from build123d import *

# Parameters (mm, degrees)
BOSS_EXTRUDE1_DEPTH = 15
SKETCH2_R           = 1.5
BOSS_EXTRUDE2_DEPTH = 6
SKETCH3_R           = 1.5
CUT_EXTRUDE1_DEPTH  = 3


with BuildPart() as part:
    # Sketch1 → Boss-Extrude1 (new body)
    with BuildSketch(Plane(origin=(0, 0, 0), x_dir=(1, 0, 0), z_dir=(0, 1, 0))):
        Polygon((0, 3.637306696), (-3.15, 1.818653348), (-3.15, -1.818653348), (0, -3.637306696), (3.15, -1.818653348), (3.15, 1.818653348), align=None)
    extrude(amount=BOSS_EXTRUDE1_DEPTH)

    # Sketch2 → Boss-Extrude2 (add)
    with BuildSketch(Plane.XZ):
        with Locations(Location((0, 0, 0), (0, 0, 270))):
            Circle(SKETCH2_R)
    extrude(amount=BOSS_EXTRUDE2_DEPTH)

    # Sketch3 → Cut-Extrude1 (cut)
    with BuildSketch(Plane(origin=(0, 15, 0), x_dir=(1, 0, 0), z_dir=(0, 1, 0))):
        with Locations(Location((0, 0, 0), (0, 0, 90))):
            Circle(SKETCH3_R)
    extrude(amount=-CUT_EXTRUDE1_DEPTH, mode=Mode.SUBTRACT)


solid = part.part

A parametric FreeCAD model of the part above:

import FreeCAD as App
import Part
import Sketcher
Q = App.Units.Quantity


def add_polygon(sketch, points):
    """Adds a closed chain of lines whose ends are joined by coincident constraints."""
    first, n = sketch.GeometryCount, len(points)
    for a, b in zip(points, points[1:] + points[:1]):
        sketch.addGeometry(Part.LineSegment(App.Vector(*a, 0), App.Vector(*b, 0)), False)
    for i in range(n):
        sketch.addConstraint(Sketcher.Constraint("Coincident", first + i, 2, first + (i + 1) % n, 1))

doc = App.newDocument("Part")
params = doc.addObject("Spreadsheet::Sheet", "Params")
for row, (alias, value) in enumerate([
    ("pad1_length", "15 mm"),
    ("sketch2_diameter", "3 mm"),
    ("pad2_length", "6 mm"),
    ("sketch3_diameter", "3 mm"),
    ("pocket1_length", "3 mm"),
], start=1):
    params.set(f"A{row}", alias)
    params.set(f"B{row}", "=" + value)
    params.setAlias(f"B{row}", alias)

body = doc.addObject("PartDesign::Body", "Body")

# Sketch on XZ plane
sketch1 = body.newObject("Sketcher::SketchObject", "Sketch")
sketch1.AttachmentSupport = (doc.getObject("XZ_Plane"), [""])
sketch1.MapMode = "FlatFace"
add_polygon(sketch1, [(0, -3.637307), (-3.15, -1.818653), (-3.15, 1.818653), (0, 3.637307), (3.15, 1.818653), (3.15, -1.818653)])  # lines 0-5
sketch1.addConstraint(Sketcher.Constraint("Vertical", 1))
sketch1.addConstraint(Sketcher.Constraint("Vertical", 4))
sketch1.addConstraint(Sketcher.Constraint("Symmetric", 0, 2, 3, 2, -1, 1))
sketch1.addConstraint(Sketcher.Constraint("Symmetric", 2, 2, 5, 2, -1, 1))
sketch1.addConstraint(Sketcher.Constraint("PointOnObject", 2, 2, -2))
sketch1.addConstraint(Sketcher.Constraint("Parallel", 2, 5))
sketch1.addConstraint(Sketcher.Constraint("Horizontal", 1, 2, 3, 2))
sketch1.addConstraint(Sketcher.Constraint("Angle", 0, Q("150 deg")))
sketch1.addConstraint(Sketcher.Constraint("DistanceX", 1, 2, 3, 2, 6.3))
sketch1.addConstraint(Sketcher.Constraint("DistanceY", 1, 1, 1, 2, 3.637307))
pad1 = body.newObject("PartDesign::Pad", "Pad")
pad1.Profile = sketch1
pad1.setExpression("Length", "Params.pad1_length")
pad1.Reversed = True

# Sketch on XZ plane
sketch2 = body.newObject("Sketcher::SketchObject", "Sketch001")
sketch2.AttachmentSupport = (doc.getObject("XZ_Plane"), [""])
sketch2.MapMode = "FlatFace"
sketch2.addGeometry(Part.Circle(App.Vector(0, 0, 0), App.Vector(0, 0, 1), 1.5), False)
sketch2.addConstraint(Sketcher.Constraint("Coincident", 0, 3, -1, 1))
sketch2.addConstraint(Sketcher.Constraint("Diameter", 0, 3.0))
sketch2.setExpression("Constraints[1]", "Params.sketch2_diameter")
pad2 = body.newObject("PartDesign::Pad", "Pad001")
pad2.Profile = sketch2
pad2.setExpression("Length", "Params.pad2_length")

# Sketch on XZ plane
sketch3 = body.newObject("Sketcher::SketchObject", "Sketch002")
sketch3.AttachmentSupport = (doc.getObject("XZ_Plane"), [""])
sketch3.MapMode = "FlatFace"
sketch3.AttachmentOffset = App.Placement(App.Vector(0, 0, -15), App.Rotation())
sketch3.addGeometry(Part.Circle(App.Vector(0, 0, 0), App.Vector(0, 0, 1), 1.5), False)
sketch3.addConstraint(Sketcher.Constraint("Coincident", 0, 3, -1, 1))
sketch3.addConstraint(Sketcher.Constraint("Diameter", 0, 3.0))
sketch3.setExpression("Constraints[1]", "Params.sketch3_diameter")
pocket1 = body.newObject("PartDesign::Pocket", "Pocket")
pocket1.Profile = sketch3
pocket1.setExpression("Length", "Params.pocket1_length")
pocket1.Reversed = True

doc.recompute()
